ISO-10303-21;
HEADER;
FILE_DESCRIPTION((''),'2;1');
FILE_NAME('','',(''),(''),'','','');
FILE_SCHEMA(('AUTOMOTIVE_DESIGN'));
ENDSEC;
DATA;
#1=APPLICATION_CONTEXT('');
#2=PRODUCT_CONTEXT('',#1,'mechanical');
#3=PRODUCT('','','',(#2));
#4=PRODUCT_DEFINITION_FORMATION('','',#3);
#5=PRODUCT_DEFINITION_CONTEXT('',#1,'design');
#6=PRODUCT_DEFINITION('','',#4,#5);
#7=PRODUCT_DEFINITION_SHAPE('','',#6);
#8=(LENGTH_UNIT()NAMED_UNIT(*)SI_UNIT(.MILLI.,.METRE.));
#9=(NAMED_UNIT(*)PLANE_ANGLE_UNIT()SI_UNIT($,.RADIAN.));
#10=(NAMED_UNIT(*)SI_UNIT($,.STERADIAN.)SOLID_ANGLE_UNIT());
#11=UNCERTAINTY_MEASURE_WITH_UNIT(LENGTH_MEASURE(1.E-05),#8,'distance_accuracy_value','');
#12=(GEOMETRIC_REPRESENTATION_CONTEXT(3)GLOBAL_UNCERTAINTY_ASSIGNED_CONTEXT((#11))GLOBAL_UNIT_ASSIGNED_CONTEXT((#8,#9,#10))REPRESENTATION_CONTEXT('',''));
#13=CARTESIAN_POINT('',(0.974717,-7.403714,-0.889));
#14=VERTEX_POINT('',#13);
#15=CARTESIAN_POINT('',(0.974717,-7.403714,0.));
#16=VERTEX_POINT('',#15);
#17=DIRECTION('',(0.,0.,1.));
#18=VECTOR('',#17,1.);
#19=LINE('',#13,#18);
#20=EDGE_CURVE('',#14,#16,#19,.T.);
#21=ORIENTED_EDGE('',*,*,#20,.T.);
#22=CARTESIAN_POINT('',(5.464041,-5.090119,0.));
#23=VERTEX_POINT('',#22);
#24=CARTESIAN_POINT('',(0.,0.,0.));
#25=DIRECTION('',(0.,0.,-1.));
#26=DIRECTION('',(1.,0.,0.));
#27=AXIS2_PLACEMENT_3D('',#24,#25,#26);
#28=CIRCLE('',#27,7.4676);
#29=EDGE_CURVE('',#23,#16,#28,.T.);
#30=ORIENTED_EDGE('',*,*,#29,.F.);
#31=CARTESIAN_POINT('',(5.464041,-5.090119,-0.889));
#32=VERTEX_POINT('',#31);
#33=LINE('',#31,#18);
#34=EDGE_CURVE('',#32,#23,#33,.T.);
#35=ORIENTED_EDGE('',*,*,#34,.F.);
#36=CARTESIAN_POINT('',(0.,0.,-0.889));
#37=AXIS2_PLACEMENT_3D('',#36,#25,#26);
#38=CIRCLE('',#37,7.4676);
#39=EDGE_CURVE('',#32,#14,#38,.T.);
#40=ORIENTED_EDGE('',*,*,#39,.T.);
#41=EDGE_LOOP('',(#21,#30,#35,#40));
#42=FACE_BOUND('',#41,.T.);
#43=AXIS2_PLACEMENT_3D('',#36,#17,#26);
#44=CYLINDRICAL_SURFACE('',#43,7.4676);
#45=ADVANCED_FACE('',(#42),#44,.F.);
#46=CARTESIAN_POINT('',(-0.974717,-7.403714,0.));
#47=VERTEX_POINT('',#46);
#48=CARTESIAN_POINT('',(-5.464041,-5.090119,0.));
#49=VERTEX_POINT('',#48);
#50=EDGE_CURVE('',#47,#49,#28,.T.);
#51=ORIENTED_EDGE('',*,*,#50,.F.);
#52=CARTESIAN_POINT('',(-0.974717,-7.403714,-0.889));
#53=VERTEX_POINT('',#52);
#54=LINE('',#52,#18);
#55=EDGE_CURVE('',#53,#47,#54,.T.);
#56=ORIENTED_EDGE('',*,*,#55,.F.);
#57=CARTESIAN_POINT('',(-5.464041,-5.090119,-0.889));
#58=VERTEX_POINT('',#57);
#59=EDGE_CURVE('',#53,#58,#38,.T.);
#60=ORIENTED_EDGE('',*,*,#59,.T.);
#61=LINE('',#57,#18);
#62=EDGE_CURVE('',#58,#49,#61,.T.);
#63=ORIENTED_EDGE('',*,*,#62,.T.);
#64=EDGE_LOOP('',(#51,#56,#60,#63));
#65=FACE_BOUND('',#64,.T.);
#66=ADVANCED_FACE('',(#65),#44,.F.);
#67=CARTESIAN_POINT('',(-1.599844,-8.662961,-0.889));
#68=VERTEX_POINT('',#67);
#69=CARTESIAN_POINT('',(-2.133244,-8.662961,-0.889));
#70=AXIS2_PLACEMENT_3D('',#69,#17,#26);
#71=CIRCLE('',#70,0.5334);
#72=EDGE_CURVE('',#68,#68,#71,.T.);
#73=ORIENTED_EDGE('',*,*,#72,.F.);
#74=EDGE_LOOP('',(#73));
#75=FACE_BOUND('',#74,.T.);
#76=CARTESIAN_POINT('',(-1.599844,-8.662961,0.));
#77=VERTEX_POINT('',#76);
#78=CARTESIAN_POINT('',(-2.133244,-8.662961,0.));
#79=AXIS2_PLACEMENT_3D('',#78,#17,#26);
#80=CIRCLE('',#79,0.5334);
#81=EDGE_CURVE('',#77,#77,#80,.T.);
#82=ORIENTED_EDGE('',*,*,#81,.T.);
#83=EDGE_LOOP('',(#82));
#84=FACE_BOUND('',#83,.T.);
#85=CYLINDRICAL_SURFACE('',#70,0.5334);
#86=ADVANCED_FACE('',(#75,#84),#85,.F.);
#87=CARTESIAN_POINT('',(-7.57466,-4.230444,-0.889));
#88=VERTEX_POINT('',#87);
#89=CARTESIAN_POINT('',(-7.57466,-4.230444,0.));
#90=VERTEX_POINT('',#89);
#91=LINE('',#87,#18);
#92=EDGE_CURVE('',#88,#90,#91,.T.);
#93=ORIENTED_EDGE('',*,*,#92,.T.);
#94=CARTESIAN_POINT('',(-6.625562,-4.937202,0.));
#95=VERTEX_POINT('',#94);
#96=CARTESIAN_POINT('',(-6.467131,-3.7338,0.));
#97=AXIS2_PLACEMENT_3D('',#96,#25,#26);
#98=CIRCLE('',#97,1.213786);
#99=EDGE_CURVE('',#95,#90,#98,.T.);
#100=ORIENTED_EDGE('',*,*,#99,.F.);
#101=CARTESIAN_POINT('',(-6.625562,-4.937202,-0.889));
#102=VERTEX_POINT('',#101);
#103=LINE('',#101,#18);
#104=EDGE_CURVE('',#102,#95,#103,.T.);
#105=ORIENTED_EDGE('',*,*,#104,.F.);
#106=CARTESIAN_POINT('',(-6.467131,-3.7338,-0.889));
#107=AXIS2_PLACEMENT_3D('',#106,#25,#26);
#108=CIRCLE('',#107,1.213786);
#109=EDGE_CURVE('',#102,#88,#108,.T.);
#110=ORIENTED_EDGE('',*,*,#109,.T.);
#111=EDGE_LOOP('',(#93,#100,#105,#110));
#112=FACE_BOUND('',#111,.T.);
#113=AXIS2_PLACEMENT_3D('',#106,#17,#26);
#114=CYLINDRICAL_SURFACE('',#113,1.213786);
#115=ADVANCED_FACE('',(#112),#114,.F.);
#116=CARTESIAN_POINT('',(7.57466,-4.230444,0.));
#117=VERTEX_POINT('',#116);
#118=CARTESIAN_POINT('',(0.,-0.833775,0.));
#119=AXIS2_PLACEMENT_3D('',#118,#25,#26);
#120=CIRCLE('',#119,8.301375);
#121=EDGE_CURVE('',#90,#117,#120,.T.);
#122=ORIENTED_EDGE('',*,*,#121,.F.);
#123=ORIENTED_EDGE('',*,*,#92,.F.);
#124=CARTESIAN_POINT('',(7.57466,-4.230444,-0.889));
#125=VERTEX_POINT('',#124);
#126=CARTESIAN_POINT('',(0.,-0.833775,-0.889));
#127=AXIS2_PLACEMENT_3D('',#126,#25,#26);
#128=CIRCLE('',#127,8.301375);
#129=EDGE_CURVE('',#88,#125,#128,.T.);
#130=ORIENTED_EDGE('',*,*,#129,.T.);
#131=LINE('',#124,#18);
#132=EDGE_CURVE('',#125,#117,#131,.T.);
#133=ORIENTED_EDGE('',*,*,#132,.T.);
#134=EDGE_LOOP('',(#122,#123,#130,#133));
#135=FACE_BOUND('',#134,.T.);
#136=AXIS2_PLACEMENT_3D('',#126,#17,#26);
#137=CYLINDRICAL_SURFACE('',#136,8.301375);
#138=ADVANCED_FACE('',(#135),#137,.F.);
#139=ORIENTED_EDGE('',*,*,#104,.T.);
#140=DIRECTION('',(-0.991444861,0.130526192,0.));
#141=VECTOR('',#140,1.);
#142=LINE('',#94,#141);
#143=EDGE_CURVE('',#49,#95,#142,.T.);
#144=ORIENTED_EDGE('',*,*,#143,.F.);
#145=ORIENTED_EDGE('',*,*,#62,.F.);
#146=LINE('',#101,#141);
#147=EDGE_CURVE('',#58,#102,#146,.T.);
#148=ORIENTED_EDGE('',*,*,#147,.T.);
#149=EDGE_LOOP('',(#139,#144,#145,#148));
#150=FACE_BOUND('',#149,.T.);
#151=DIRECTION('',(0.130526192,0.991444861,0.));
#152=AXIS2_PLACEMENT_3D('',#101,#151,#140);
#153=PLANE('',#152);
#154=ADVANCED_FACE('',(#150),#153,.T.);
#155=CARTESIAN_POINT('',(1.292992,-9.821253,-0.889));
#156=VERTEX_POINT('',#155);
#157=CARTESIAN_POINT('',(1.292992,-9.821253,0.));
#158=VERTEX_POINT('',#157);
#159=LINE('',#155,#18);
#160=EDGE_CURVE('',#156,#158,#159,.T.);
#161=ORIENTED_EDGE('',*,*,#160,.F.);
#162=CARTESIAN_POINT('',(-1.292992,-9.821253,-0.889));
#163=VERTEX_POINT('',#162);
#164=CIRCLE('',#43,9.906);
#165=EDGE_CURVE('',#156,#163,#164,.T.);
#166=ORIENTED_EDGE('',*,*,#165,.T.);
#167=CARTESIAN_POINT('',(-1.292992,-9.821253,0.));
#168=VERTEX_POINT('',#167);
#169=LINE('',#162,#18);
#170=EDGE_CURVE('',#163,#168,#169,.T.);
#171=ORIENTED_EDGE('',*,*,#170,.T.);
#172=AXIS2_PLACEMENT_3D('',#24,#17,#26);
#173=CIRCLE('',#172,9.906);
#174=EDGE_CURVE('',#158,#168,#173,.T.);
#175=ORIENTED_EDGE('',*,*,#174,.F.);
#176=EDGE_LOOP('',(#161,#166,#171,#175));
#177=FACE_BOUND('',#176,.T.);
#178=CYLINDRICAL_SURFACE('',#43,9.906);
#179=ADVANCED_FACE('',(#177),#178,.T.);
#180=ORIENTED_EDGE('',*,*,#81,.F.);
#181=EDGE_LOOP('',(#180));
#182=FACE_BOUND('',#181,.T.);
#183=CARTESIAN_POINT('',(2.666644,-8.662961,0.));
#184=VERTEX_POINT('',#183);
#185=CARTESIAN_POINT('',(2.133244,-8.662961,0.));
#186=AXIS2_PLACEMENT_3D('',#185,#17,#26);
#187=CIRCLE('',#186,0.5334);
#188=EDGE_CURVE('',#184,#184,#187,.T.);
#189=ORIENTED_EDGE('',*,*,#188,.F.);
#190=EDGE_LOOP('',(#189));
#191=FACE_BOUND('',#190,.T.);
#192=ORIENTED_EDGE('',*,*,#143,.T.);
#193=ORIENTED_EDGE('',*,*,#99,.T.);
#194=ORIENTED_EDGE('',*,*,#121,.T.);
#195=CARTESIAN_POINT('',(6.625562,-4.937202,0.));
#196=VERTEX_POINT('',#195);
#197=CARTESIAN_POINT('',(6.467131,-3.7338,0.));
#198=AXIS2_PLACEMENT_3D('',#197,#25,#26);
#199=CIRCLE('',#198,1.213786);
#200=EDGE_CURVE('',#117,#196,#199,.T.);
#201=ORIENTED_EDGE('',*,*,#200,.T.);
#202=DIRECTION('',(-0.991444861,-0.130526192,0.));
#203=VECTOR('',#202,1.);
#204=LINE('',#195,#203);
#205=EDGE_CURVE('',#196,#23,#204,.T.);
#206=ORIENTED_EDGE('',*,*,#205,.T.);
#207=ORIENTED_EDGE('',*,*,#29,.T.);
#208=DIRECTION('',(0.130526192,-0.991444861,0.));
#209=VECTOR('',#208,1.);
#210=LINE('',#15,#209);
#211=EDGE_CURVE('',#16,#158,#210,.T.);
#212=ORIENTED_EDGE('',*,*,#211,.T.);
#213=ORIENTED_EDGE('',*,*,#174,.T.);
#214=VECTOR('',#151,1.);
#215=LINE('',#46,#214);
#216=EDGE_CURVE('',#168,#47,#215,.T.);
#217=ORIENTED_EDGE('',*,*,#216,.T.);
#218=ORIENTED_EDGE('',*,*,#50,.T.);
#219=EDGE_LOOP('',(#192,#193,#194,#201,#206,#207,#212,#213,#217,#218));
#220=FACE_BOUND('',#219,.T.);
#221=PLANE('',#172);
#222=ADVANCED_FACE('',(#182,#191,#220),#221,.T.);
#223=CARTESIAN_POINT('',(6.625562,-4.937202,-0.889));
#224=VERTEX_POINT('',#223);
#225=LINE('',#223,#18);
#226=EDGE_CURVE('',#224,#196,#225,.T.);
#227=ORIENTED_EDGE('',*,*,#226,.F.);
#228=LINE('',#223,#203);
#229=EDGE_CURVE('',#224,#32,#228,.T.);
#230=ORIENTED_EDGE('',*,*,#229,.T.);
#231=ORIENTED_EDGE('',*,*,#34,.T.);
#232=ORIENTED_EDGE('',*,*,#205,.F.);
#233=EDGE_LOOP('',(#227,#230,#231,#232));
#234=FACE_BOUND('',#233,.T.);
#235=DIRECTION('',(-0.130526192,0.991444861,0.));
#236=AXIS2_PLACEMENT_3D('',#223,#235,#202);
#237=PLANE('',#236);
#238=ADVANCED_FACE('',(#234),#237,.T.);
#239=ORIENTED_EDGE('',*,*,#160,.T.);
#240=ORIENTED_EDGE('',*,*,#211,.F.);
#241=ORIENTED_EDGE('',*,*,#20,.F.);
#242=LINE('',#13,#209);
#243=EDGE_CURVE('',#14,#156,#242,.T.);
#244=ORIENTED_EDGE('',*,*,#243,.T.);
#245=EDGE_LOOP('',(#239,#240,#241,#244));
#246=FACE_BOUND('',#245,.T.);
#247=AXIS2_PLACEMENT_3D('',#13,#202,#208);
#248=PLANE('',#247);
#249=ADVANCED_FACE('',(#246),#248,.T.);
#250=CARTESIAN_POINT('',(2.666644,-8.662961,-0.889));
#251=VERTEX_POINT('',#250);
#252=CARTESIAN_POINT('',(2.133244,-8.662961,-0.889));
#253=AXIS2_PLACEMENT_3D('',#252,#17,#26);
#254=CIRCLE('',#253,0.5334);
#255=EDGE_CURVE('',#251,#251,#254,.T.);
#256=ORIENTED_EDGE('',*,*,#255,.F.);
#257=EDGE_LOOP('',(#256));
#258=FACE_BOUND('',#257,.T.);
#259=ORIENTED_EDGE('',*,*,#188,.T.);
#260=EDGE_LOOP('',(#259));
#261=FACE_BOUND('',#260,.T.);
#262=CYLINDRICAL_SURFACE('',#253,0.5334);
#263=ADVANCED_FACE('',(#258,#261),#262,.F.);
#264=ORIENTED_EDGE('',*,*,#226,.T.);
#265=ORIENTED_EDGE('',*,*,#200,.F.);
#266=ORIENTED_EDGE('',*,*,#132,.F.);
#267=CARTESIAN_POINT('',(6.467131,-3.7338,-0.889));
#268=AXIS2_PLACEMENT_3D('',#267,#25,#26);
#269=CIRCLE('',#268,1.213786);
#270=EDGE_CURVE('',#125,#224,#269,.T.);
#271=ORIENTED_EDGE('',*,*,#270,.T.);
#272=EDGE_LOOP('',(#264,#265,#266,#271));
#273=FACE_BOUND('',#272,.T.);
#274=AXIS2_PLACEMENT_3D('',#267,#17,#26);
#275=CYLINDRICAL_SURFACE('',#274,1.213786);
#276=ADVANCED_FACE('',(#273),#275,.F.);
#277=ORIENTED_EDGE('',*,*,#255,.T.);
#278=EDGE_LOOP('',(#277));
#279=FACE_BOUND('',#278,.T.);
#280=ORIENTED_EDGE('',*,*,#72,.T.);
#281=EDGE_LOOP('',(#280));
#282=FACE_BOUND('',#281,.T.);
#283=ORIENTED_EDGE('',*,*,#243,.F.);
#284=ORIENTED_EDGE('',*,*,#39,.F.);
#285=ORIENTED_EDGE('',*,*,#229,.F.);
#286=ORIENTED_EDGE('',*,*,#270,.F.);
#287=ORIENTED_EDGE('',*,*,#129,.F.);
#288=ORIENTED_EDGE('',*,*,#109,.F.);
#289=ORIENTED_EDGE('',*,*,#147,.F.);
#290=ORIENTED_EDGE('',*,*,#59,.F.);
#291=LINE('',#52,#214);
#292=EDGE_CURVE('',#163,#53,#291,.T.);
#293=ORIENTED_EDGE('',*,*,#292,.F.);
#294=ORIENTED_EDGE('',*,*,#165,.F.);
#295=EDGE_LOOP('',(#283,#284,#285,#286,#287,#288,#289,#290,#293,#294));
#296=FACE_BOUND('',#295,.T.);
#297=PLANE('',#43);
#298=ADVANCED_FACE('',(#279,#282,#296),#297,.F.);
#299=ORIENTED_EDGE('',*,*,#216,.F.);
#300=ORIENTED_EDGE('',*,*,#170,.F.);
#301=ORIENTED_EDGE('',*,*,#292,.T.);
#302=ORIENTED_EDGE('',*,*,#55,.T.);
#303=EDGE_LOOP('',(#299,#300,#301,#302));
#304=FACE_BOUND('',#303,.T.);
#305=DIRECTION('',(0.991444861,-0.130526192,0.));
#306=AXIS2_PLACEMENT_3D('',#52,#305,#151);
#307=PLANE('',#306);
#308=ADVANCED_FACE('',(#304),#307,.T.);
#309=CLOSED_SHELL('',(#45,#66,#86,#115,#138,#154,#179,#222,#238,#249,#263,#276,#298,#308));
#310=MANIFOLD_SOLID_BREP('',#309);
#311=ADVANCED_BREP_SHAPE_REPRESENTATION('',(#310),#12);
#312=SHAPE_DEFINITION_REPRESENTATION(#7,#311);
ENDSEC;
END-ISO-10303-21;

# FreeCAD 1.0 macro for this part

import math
import FreeCAD as App
import Part
import Sketcher
Q = App.Units.Quantity

doc = App.newDocument("Part")
body = doc.addObject("PartDesign::Body", "Body")

# Sketch on XY plane
sketch1 = body.newObject("Sketcher::SketchObject", "Sketch")
sketch1.AttachmentSupport = (doc.getObject("XY_Plane"), [""])
sketch1.MapMode = "FlatFace"
sketch1.addGeometry([
    Part.LineSegment(App.Vector(-1.292992, -9.821253, 0), App.Vector(-0.974717, -7.403714, 0)),  # 0
    Part.ArcOfCircle(Part.Circle(App.Vector(0, 0, 0), App.Vector(0, 0, 1), 7.4676), math.radians(-137.029076), math.radians(-97.5)),  # 1
    Part.LineSegment(App.Vector(-5.464041, -5.090119, 0), App.Vector(-6.625562, -4.937202, 0)),  # 2
    Part.ArcOfCircle(Part.Circle(App.Vector(-6.467131, -3.7338, 0), App.Vector(0, 0, 1), 1.213786), math.radians(-155.847335), math.radians(-97.5)),  # 3
    Part.ArcOfCircle(Part.Circle(App.Vector(0, -0.833775, 0), App.Vector(0, 0, 1), 8.301375), math.radians(-24.152665), math.radians(204.152665)),  # 4
    Part.ArcOfCircle(Part.Circle(App.Vector(6.467131, -3.7338, 0), App.Vector(0, 0, 1), 1.213786), math.radians(-82.5), math.radians(-24.152665)),  # 5
    Part.LineSegment(App.Vector(6.625562, -4.937202, 0), App.Vector(5.464041, -5.090119, 0)),  # 6
    Part.ArcOfCircle(Part.Circle(App.Vector(0, 0, 0), App.Vector(0, 0, 1), 7.4676), math.radians(-82.5), math.radians(-42.970924)),  # 7
    Part.LineSegment(App.Vector(0.974717, -7.403714, 0), App.Vector(1.292992, -9.821253, 0)),  # 8
    Part.ArcOfCircle(Part.Circle(App.Vector(0, 0, 0), App.Vector(0, 0, 1), 9.906), math.radians(-82.5), math.radians(262.5)),  # 9
    Part.Circle(App.Vector(2.133244, -8.662961, 0), App.Vector(0, 0, 1), 0.5334),  # 10
    Part.Circle(App.Vector(-2.133244, -8.662961, 0), App.Vector(0, 0, 1), 0.5334),  # 11
], False)
sketch1.addConstraint([
    Sketcher.Constraint("Coincident", 0, 2, 1, 2),
    Sketcher.Constraint("Coincident", 1, 1, 2, 1),
    Sketcher.Constraint("Coincident", 2, 2, 3, 2),
    Sketcher.Constraint("Coincident", 3, 1, 4, 2),
    Sketcher.Constraint("Coincident", 4, 1, 5, 2),
    Sketcher.Constraint("Coincident", 5, 1, 6, 1),
    Sketcher.Constraint("Coincident", 6, 2, 7, 2),
    Sketcher.Constraint("Coincident", 7, 1, 8, 1),
    Sketcher.Constraint("Coincident", 8, 2, 9, 1),
    Sketcher.Constraint("Coincident", 9, 2, 0, 1),
    Sketcher.Constraint("Coincident", 1, 3, -1, 1),
    Sketcher.Constraint("Coincident", 7, 3, -1, 1),
    Sketcher.Constraint("Coincident", 9, 3, -1, 1),
    Sketcher.Constraint("PointOnObject", 4, 3, -2),
    Sketcher.Constraint("Radius", 9, Q("0.39 in")),
    Sketcher.Constraint("Diameter", 10, Q("0.042 in")),
    Sketcher.Constraint("Diameter", 11, Q("0.042 in")),
    Sketcher.Constraint("Radius", 1, Q("0.294 in")),
    Sketcher.Constraint("Radius", 7, Q("0.294 in")),
    Sketcher.Constraint("DistanceY", 3, 3, -1, 1, Q("0.147 in")),
    Sketcher.Constraint("DistanceY", 5, 3, -1, 1, Q("0.147 in")),
    Sketcher.Constraint("Radius", 3, 1.213786),
    Sketcher.Constraint("Radius", 4, 8.301375),
    Sketcher.Constraint("Radius", 5, 1.213786),
    Sketcher.Constraint("DistanceY", 2, 2, -1, 1, 4.937202),
    Sketcher.Constraint("DistanceY", 5, 1, -1, 1, 4.937202),
    Sketcher.Constraint("DistanceX", 3, 1, 2, 2, 0.949098),
    Sketcher.Constraint("DistanceX", 5, 1, 4, 1, 0.949098),
    Sketcher.Constraint("DistanceX", 3, 3, -1, 1, 6.467131),
    Sketcher.Constraint("DistanceY", 10, 3, -1, 1, 8.662961),
    Sketcher.Constraint("DistanceY", 11, 3, -1, 1, 8.662961),
    Sketcher.Constraint("DistanceX", 1, 1, -1, 1, 5.464041),
    Sketcher.Constraint("DistanceX", -1, 1, 6, 2, 5.464041),
    Sketcher.Constraint("DistanceX", 0, 2, 10, 3, 3.107961),
    Sketcher.Constraint("DistanceY", 0, 2, 4, 3, 6.569938),
    Sketcher.Constraint("DistanceX", 2, 2, 11, 3, 4.492319),
    Sketcher.Constraint("DistanceX", 11, 3, 7, 1, 3.107961),
    Sketcher.Constraint("DistanceX", 8, 2, 10, 3, 0.840251),
    Sketcher.Constraint("DistanceX", 11, 3, 9, 2, 0.840251),
])
pad1 = body.newObject("PartDesign::Pad", "Pad")
pad1.Profile = sketch1
pad1.Length = Q("0.035 in")
pad1.Reversed = True

doc.recompute()
